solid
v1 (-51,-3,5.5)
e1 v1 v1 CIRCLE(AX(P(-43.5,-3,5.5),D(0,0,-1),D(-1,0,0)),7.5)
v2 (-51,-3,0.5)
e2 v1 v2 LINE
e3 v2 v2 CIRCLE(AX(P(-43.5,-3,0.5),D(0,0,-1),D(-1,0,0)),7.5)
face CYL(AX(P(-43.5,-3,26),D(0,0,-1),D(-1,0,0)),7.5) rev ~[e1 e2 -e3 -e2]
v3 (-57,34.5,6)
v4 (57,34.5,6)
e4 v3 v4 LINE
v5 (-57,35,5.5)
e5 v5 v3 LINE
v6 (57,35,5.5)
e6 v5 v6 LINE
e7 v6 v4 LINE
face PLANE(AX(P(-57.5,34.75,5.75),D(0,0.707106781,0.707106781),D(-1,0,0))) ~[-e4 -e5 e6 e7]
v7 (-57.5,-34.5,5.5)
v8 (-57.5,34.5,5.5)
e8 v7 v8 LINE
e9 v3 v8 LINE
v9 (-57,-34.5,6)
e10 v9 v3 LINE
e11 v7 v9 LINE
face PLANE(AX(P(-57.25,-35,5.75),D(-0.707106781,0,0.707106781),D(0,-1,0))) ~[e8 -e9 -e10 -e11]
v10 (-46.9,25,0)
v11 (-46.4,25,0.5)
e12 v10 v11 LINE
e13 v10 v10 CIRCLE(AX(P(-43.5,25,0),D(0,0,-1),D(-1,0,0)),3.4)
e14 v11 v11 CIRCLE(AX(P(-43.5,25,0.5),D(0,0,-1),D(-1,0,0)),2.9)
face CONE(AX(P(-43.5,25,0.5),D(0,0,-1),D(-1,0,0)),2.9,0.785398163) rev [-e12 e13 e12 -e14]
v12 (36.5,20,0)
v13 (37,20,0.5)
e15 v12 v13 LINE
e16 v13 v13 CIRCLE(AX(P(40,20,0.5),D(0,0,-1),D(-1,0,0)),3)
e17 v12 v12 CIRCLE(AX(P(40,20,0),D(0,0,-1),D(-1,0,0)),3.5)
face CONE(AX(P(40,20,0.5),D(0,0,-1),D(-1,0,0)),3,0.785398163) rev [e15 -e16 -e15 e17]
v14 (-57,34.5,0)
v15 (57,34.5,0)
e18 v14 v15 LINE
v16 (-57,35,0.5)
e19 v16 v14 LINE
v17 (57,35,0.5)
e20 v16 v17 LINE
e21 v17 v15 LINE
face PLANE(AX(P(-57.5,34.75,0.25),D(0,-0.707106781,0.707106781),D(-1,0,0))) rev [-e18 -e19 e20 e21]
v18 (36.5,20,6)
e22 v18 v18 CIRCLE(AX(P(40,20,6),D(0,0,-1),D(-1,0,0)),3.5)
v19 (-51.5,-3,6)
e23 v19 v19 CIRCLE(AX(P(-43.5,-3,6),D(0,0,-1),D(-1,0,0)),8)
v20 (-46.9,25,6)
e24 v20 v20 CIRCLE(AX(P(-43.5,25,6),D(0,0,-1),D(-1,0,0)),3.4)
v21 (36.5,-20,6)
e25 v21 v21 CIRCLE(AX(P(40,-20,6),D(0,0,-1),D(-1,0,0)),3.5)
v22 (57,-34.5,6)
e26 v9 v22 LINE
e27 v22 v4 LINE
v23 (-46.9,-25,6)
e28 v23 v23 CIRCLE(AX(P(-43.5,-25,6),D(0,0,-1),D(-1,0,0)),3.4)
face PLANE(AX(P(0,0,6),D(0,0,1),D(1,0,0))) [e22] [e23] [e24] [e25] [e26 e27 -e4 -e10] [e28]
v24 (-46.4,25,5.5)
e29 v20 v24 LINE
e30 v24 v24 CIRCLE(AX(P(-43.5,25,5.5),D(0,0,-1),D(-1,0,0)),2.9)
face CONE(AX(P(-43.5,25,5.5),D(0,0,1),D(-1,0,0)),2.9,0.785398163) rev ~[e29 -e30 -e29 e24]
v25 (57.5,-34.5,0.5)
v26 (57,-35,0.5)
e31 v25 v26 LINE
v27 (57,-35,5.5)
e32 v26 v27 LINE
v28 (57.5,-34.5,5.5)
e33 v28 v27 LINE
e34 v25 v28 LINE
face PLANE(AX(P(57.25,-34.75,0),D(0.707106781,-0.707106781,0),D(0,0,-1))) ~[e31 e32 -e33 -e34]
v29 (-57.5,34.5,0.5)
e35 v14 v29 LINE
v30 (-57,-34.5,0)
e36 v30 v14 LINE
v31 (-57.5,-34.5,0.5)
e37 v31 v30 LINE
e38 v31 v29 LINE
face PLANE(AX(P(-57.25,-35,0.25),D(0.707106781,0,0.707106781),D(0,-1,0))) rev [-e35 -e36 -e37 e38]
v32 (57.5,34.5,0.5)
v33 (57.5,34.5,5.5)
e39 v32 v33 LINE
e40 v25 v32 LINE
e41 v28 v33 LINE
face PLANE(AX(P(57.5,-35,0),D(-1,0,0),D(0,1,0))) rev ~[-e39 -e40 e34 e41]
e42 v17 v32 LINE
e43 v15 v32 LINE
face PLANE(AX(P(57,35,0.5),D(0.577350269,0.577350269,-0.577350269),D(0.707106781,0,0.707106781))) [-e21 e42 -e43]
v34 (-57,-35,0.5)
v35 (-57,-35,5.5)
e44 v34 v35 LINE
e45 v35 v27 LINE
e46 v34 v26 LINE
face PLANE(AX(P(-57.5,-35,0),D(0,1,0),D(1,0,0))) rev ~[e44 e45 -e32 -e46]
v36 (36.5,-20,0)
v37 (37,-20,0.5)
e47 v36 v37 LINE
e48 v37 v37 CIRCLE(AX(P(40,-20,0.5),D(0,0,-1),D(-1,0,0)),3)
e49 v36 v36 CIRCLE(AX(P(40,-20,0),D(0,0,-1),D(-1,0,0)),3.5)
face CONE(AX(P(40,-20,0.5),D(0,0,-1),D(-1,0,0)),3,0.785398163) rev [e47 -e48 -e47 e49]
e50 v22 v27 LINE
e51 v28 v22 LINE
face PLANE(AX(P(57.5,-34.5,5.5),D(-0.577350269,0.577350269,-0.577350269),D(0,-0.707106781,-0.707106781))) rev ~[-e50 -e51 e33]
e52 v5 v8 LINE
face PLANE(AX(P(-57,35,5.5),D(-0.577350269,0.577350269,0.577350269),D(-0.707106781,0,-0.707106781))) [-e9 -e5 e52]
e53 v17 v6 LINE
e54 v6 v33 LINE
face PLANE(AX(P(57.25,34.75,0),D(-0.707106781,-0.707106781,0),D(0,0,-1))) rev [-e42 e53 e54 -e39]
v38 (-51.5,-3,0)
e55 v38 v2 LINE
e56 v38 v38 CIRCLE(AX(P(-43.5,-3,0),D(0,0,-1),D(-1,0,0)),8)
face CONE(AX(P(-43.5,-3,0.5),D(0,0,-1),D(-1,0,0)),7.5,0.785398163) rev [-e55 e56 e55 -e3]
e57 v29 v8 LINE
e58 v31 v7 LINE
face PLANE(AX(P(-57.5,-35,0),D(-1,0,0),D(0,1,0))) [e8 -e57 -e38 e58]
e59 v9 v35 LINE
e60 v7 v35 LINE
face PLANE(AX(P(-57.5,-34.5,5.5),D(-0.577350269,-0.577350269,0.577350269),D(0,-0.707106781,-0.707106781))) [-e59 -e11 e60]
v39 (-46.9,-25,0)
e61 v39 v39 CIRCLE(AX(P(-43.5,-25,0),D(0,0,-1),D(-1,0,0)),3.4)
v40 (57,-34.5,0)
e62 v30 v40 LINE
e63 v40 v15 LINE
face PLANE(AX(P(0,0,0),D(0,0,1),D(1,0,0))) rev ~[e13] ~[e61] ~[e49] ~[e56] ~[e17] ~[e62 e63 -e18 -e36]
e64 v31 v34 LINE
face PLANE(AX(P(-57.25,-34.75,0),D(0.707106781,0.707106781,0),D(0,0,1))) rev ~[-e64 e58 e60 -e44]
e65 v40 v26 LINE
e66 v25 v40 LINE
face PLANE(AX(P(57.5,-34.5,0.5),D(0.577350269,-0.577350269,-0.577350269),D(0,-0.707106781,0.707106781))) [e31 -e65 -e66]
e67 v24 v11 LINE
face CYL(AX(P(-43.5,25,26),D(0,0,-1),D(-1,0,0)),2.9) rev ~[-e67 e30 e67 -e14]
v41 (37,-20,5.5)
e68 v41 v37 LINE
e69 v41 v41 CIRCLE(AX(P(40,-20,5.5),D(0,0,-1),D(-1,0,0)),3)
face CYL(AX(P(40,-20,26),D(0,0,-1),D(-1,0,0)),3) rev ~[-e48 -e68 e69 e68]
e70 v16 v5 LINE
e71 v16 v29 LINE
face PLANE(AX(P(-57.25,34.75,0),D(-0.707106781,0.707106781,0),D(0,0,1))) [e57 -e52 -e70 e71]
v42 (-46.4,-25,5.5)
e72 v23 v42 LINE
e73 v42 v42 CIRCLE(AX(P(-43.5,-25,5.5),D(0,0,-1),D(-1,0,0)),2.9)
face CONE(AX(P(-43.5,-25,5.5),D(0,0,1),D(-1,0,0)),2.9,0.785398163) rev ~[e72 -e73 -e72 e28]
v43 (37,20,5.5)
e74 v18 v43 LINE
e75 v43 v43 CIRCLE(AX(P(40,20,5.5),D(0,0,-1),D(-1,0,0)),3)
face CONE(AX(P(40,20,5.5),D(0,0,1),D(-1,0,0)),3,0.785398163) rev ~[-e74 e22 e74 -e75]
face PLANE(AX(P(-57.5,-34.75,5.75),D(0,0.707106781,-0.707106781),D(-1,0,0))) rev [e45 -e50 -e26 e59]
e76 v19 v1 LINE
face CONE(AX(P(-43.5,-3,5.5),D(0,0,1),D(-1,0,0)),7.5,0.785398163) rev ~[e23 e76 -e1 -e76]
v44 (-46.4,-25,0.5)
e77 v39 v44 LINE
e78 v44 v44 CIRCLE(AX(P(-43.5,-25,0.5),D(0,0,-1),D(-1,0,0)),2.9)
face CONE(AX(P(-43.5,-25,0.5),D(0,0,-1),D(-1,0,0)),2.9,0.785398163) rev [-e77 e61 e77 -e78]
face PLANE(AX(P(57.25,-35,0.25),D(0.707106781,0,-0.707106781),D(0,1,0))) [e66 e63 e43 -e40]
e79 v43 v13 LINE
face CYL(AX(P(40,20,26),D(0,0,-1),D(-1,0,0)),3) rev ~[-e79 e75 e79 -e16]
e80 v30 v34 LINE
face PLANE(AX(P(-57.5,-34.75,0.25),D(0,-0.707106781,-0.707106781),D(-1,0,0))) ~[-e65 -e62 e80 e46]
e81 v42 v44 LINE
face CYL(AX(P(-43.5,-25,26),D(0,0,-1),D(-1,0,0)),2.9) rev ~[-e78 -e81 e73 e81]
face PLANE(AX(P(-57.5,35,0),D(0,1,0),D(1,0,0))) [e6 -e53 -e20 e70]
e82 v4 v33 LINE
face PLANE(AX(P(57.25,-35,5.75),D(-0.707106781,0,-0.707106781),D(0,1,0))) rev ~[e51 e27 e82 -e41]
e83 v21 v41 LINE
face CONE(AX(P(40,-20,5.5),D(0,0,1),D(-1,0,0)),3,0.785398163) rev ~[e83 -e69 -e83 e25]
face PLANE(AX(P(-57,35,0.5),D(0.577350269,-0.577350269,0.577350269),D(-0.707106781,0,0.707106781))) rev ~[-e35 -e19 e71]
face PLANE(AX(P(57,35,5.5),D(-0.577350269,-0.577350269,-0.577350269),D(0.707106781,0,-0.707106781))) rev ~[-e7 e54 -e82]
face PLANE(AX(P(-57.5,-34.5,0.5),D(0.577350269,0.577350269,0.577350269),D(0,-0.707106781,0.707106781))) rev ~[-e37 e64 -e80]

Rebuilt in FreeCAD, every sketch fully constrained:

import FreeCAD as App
import Part
import Sketcher
from FreeCAD import Vector
Q = App.Units.Quantity

doc = App.newDocument("Part")
body = doc.addObject("PartDesign::Body", "Body")

# Sketch on XY plane
sketch1 = doc.addObject("Sketcher::SketchObject", "Sketch")
body.addObject(sketch1)
sketch1.AttachmentSupport = (doc.XY_Plane, [""])
sketch1.MapMode = "FlatFace"
sketch1.addGeometry(Part.LineSegment(Vector(-58, 35, 0), Vector(-58, -35, 0)), False)
sketch1.addGeometry(Part.LineSegment(Vector(-58, -35, 0), Vector(58, -35, 0)), False)
sketch1.addGeometry(Part.LineSegment(Vector(58, -35, 0), Vector(58, 35, 0)), False)
sketch1.addGeometry(Part.LineSegment(Vector(58, 35, 0), Vector(-58, 35, 0)), False)
sketch1.addConstraint(Sketcher.Constraint("Coincident", 0, 2, 1, 1))
sketch1.addConstraint(Sketcher.Constraint("Coincident", 1, 2, 2, 1))
sketch1.addConstraint(Sketcher.Constraint("Coincident", 2, 2, 3, 1))
sketch1.addConstraint(Sketcher.Constraint("Coincident", 3, 2, 0, 1))
sketch1.addConstraint(Sketcher.Constraint("Vertical", 0))
sketch1.addConstraint(Sketcher.Constraint("Horizontal", 1))
sketch1.addConstraint(Sketcher.Constraint("Vertical", 2))
sketch1.addConstraint(Sketcher.Constraint("Horizontal", 3))
sketch1.addConstraint(Sketcher.Constraint("Symmetric", 0, 2, 2, 2, -1, 1))
sketch1.addConstraint(Sketcher.Constraint("DistanceX", 1, 1, 1, 2, Q("115 mm")))
sketch1.addConstraint(Sketcher.Constraint("DistanceY", 0, 2, 0, 1, Q("70 mm")))
pad1 = doc.addObject("PartDesign::Pad", "Pad")
body.addObject(pad1)
pad1.Profile = sketch1
pad1.Length = 6

# Sketch on XY plane
sketch2 = doc.addObject("Sketcher::SketchObject", "Sketch001")
body.addObject(sketch2)
sketch2.AttachmentSupport = (doc.XY_Plane, [""])
sketch2.MapMode = "FlatFace"
sketch2.AttachmentOffset = App.Placement(Vector(0, 0, 6), App.Rotation())
sketch2.addGeometry(Part.Circle(Vector(-44, -3, 0), Vector(0, 0, 1), 8), False)
sketch2.addConstraint(Sketcher.Constraint("Diameter", 0, Q("15 mm")))
sketch2.addConstraint(Sketcher.Constraint("DistanceY", 0, 3, -1, 1, Q("3 mm")))
sketch2.addConstraint(Sketcher.Constraint("DistanceX", 0, 3, -1, 1, Q("43.5 mm")))
doc.recompute()
hole = doc.addObject("PartDesign::Hole", "Hole")
body.addObject(hole)
hole.Profile = sketch2
hole.ThreadType = "None"
hole.Diameter = 15
hole.DepthType = "Dimension"
hole.Depth = 20
hole.DrillPoint = "Flat"

# Sketch on XY plane
sketch3 = doc.addObject("Sketcher::SketchObject", "Sketch002")
body.addObject(sketch3)
sketch3.AttachmentSupport = (doc.XY_Plane, [""])
sketch3.MapMode = "FlatFace"
sketch3.AttachmentOffset = App.Placement(Vector(0, 0, 6), App.Rotation())
sketch3.addGeometry(Part.Circle(Vector(-43.5, 25, 0), Vector(0, 0, 1), 2.9), False)
sketch3.addGeometry(Part.Circle(Vector(-43.5, -25, 0), Vector(0, 0, 1), 2.9), False)
sketch3.addConstraint(Sketcher.Constraint("Equal", 0, 1))
sketch3.addConstraint(Sketcher.Constraint("Symmetric", 0, 3, 1, 3, -1))
sketch3.addConstraint(Sketcher.Constraint("Diameter", 0, Q("5.8 mm")))
sketch3.addConstraint(Sketcher.Constraint("DistanceY", -1, 1, 0, 3, Q("25 mm")))
sketch3.addConstraint(Sketcher.Constraint("DistanceX", 0, 3, -1, 1, Q("43.5 mm")))
doc.recompute()
hole2 = doc.addObject("PartDesign::Hole", "Hole001")
body.addObject(hole2)
hole2.Profile = sketch3
hole2.ThreadType = "None"
hole2.Diameter = 5.8
hole2.DepthType = "Dimension"
hole2.Depth = 20
hole2.DrillPoint = "Flat"

# Sketch on XY plane
sketch4 = doc.addObject("Sketcher::SketchObject", "Sketch003")
body.addObject(sketch4)
sketch4.AttachmentSupport = (doc.XY_Plane, [""])
sketch4.MapMode = "FlatFace"
sketch4.AttachmentOffset = App.Placement(Vector(0, 0, 6), App.Rotation())
sketch4.addGeometry(Part.Circle(Vector(40, 20, 0), Vector(0, 0, 1), 3), False)
sketch4.addGeometry(Part.Circle(Vector(40, -20, 0), Vector(0, 0, 1), 3), False)
sketch4.addConstraint(Sketcher.Constraint("Equal", 0, 1))
sketch4.addConstraint(Sketcher.Constraint("Symmetric", 0, 3, 1, 3, -1))
sketch4.addConstraint(Sketcher.Constraint("Diameter", 0, Q("6 mm")))
sketch4.addConstraint(Sketcher.Constraint("DistanceX", -1, 1, 0, 3, Q("40 mm")))
sketch4.addConstraint(Sketcher.Constraint("DistanceY", -1, 1, 0, 3, Q("20 mm")))
doc.recompute()
hole3 = doc.addObject("PartDesign::Hole", "Hole002")
body.addObject(hole3)
hole3.Profile = sketch4
hole3.ThreadType = "None"
hole3.Diameter = 6
hole3.DepthType = "Dimension"
hole3.Depth = 20
hole3.DrillPoint = "Flat"
doc.recompute()

chamfer = doc.addObject("PartDesign::Chamfer", "Chamfer")
body.addObject(chamfer)
chamfer.Base = (hole3, ["Edge1"])
chamfer.UseAllEdges = True
chamfer.Size = 0.5

doc.recompute()
